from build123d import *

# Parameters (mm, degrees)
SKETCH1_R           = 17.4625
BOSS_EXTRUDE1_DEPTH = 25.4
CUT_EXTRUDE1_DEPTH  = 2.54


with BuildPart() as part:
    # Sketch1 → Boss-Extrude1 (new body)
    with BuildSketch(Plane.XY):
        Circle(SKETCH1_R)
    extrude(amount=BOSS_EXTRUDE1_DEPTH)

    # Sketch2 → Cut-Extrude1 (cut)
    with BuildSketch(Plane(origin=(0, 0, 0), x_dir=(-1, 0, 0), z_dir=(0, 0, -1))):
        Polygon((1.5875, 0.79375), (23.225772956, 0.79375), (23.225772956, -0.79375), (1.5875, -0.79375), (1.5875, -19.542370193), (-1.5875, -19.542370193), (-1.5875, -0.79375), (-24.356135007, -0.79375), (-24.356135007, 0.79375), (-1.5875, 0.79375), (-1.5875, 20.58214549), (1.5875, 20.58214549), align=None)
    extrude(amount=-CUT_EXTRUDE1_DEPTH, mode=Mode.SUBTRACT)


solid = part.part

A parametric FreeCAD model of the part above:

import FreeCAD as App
import Part
import Sketcher

V = App.Vector
Q = App.Units.Quantity

doc = App.newDocument("Part")
body = doc.addObject("PartDesign::Body", "Body")

sketch1 = doc.addObject("Sketcher::SketchObject", "Sketch")
body.addObject(sketch1)
sketch1.AttachmentSupport = (doc.XY_Plane, [""])
sketch1.MapMode = "FlatFace"
sketch1.addGeometry(Part.Circle(V(0, 0, 0), V(0, 0, 1), 17), False)
sketch1.addConstraint(Sketcher.Constraint("Coincident", 0, 3, -1, 1))
sketch1.addConstraint(Sketcher.Constraint("Diameter", 0, Q("1.375 in")))
pad1 = doc.addObject("PartDesign::Pad", "Pad")
body.addObject(pad1)
pad1.Profile = sketch1
pad1.Length = Q("1 in")

sketch2 = doc.addObject("Sketcher::SketchObject", "Sketch001")
body.addObject(sketch2)
sketch2.AttachmentSupport = (doc.XY_Plane, [""])
sketch2.MapMode = "FlatFace"
sketch2.addGeometry(Part.LineSegment(V(-23.2, 0.8, 0), V(-1.6, 0.8, 0)), False)
sketch2.addGeometry(Part.LineSegment(V(-1.6, 0.8, 0), V(-1.6, 20.6, 0)), False)
sketch2.addGeometry(Part.LineSegment(V(-1.6, 20.6, 0), V(1.6, 20.6, 0)), False)
sketch2.addGeometry(Part.LineSegment(V(1.6, 20.6, 0), V(1.6, 0.8, 0)), False)
sketch2.addGeometry(Part.LineSegment(V(1.6, 0.8, 0), V(24.4, 0.8, 0)), False)
sketch2.addGeometry(Part.LineSegment(V(24.4, 0.8, 0), V(24.4, -0.8, 0)), False)
sketch2.addGeometry(Part.LineSegment(V(24.4, -0.8, 0), V(1.6, -0.8, 0)), False)
sketch2.addGeometry(Part.LineSegment(V(1.6, -0.8, 0), V(1.6, -19.5, 0)), False)
sketch2.addGeometry(Part.LineSegment(V(1.6, -19.5, 0), V(-1.6, -19.5, 0)), False)
sketch2.addGeometry(Part.LineSegment(V(-1.6, -19.5, 0), V(-1.6, -0.8, 0)), False)
sketch2.addGeometry(Part.LineSegment(V(-1.6, -0.8, 0), V(-23.2, -0.8, 0)), False)
sketch2.addGeometry(Part.LineSegment(V(-23.2, -0.8, 0), V(-23.2, 0.8, 0)), False)
sketch2.addConstraint(Sketcher.Constraint("Coincident", 0, 2, 1, 1))
sketch2.addConstraint(Sketcher.Constraint("Coincident", 1, 2, 2, 1))
sketch2.addConstraint(Sketcher.Constraint("Coincident", 2, 2, 3, 1))
sketch2.addConstraint(Sketcher.Constraint("Coincident", 3, 2, 4, 1))
sketch2.addConstraint(Sketcher.Constraint("Coincident", 4, 2, 5, 1))
sketch2.addConstraint(Sketcher.Constraint("Coincident", 5, 2, 6, 1))
sketch2.addConstraint(Sketcher.Constraint("Coincident", 6, 2, 7, 1))
sketch2.addConstraint(Sketcher.Constraint("Coincident", 7, 2, 8, 1))
sketch2.addConstraint(Sketcher.Constraint("Coincident", 8, 2, 9, 1))
sketch2.addConstraint(Sketcher.Constraint("Coincident", 9, 2, 10, 1))
sketch2.addConstraint(Sketcher.Constraint("Coincident", 10, 2, 11, 1))
sketch2.addConstraint(Sketcher.Constraint("Coincident", 11, 2, 0, 1))
sketch2.addConstraint(Sketcher.Constraint("Horizontal", 0))
sketch2.addConstraint(Sketcher.Constraint("Vertical", 1))
sketch2.addConstraint(Sketcher.Constraint("Horizontal", 2))
sketch2.addConstraint(Sketcher.Constraint("Vertical", 3))
sketch2.addConstraint(Sketcher.Constraint("Horizontal", 4))
sketch2.addConstraint(Sketcher.Constraint("Vertical", 5))
sketch2.addConstraint(Sketcher.Constraint("Horizontal", 6))
sketch2.addConstraint(Sketcher.Constraint("Vertical", 7))
sketch2.addConstraint(Sketcher.Constraint("Horizontal", 8))
sketch2.addConstraint(Sketcher.Constraint("Vertical", 9))
sketch2.addConstraint(Sketcher.Constraint("Horizontal", 10))
sketch2.addConstraint(Sketcher.Constraint("Vertical", 11))
sketch2.addConstraint(Sketcher.Constraint("Symmetric", 0, 2, 6, 2, -1, 1))
sketch2.addConstraint(Sketcher.Constraint("Symmetric", 3, 2, 9, 2, -1, 1))
sketch2.addConstraint(Sketcher.Constraint("Symmetric", 0, 2, 3, 2, -2))
sketch2.addConstraint(Sketcher.Constraint("DistanceX", 2, 1, 2, 2, Q("0.125 in")))
sketch2.addConstraint(Sketcher.Constraint("DistanceY", 5, 2, 5, 1, Q("0.0625 in")))
sketch2.addConstraint(Sketcher.Constraint("DistanceY", 7, 2, 7, 1, 18.74862))
sketch2.addConstraint(Sketcher.Constraint("DistanceX", 0, 1, 0, 2, 21.638273))
sketch2.addConstraint(Sketcher.Constraint("DistanceX", 4, 1, 4, 2, 22.768635))
sketch2.addConstraint(Sketcher.Constraint("DistanceY", 1, 1, 1, 2, 19.788395))
pocket1 = doc.addObject("PartDesign::Pocket", "Pocket")
body.addObject(pocket1)
pocket1.Profile = sketch2
pocket1.Length = Q("0.1 in")
pocket1.Reversed = True

doc.recompute()
